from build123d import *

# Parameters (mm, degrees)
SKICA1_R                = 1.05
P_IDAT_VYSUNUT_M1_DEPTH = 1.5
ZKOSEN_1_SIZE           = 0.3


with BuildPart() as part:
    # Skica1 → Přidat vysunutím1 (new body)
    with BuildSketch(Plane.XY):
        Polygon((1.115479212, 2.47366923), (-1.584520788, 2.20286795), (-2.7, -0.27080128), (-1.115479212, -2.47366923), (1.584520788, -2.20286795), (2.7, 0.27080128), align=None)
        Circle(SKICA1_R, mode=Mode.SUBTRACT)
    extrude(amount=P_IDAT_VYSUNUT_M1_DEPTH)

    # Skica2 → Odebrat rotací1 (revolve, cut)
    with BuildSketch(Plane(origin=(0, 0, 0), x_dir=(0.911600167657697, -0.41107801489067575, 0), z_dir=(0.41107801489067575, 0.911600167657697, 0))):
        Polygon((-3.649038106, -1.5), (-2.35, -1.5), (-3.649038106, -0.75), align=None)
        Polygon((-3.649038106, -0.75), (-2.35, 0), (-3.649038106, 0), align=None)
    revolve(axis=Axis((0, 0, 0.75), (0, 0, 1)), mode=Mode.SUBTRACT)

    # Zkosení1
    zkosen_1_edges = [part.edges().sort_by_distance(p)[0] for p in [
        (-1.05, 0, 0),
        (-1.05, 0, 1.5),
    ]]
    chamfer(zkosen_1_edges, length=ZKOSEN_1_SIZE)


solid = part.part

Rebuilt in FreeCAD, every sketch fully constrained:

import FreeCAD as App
import Part
import Sketcher
from FreeCAD import Vector
Q = App.Units.Quantity


def edges_at(feature, points):
    """Names of the edges that pass closest to the given points."""
    edges = feature.Shape.Edges
    near = lambda p: min(range(len(edges)), key=lambda i: edges[i].distToShape(Part.Vertex(*p))[0])
    return sorted({f"Edge{near(p) + 1}" for p in points})

doc = App.newDocument("Part")
body = doc.addObject("PartDesign::Body", "Body")

# Sketch on XY plane
sketch1 = body.newObject("Sketcher::SketchObject", "Sketch")
sketch1.AttachmentSupport = (doc.getObject("XY_Plane"), [""])
sketch1.MapMode = "FlatFace"
sketch1.addGeometry(Part.LineSegment(Vector(1.115479, 2.473669, 0), Vector(-1.584521, 2.202868, 0)), False)
sketch1.addGeometry(Part.LineSegment(Vector(-1.584521, 2.202868, 0), Vector(-2.7, -0.270801, 0)), False)
sketch1.addGeometry(Part.LineSegment(Vector(-2.7, -0.270801, 0), Vector(-1.115479, -2.473669, 0)), False)
sketch1.addGeometry(Part.LineSegment(Vector(-1.115479, -2.473669, 0), Vector(1.584521, -2.202868, 0)), False)
sketch1.addGeometry(Part.LineSegment(Vector(1.584521, -2.202868, 0), Vector(2.7, 0.270801, 0)), False)
sketch1.addGeometry(Part.LineSegment(Vector(2.7, 0.270801, 0), Vector(1.115479, 2.473669, 0)), False)
sketch1.addGeometry(Part.Circle(Vector(0, 0, 0), Vector(0, 0, 1), 1.05), False)
sketch1.addConstraint(Sketcher.Constraint("Coincident", 0, 2, 1, 1))
sketch1.addConstraint(Sketcher.Constraint("Coincident", 1, 2, 2, 1))
sketch1.addConstraint(Sketcher.Constraint("Coincident", 2, 2, 3, 1))
sketch1.addConstraint(Sketcher.Constraint("Coincident", 3, 2, 4, 1))
sketch1.addConstraint(Sketcher.Constraint("Coincident", 4, 2, 5, 1))
sketch1.addConstraint(Sketcher.Constraint("Coincident", 5, 2, 0, 1))
sketch1.addConstraint(Sketcher.Constraint("Coincident", 6, 3, -1, 1))
sketch1.addConstraint(Sketcher.Constraint("Symmetric", 0, 2, 3, 2, -1, 1))
sketch1.addConstraint(Sketcher.Constraint("Symmetric", 1, 2, 4, 2, -1, 1))
sketch1.addConstraint(Sketcher.Constraint("Symmetric", 2, 2, 5, 2, -1, 1))
sketch1.addConstraint(Sketcher.Constraint("Equal", 0, 1))
sketch1.addConstraint(Sketcher.Constraint("Equal", 1, 2))
sketch1.addConstraint(Sketcher.Constraint("Diameter", 6, Q("2.1 mm")))
sketch1.addConstraint(Sketcher.Constraint("DistanceX", 1, 2, -1, 1, Q("2.7 mm")))
sketch1.addConstraint(Sketcher.Constraint("DistanceX", 2, 2, 3, 2, Q("2.7 mm")))
sketch1.addConstraint(Sketcher.Constraint("DistanceY", 1, 2, -1, 1, Q("0.270801 mm")))
sketch1.addConstraint(Sketcher.Constraint("DistanceY", 2, 2, 3, 2, Q("0.270801 mm")))
pad1 = body.newObject("PartDesign::Pad", "Pad")
pad1.Profile = sketch1
pad1.Length = 1.5

# Sketch on an angled plane
sketch2 = body.newObject("Sketcher::SketchObject", "Sketch001")
sketch2.Placement = App.Placement(Vector(0, 0, 0), App.Rotation(Vector(0.911600168, -0.411078015, 0), Vector(0, 0, -1.000000001), Vector(0.411078015, 0.911600168, 0), "ZXY"))
sketch2.addGeometry(Part.LineSegment(Vector(-3.649038, -1.5, 0), Vector(-2.35, -1.5, 0)), False)
sketch2.addGeometry(Part.LineSegment(Vector(-2.35, -1.5, 0), Vector(-3.649038, -0.75, 0)), False)
sketch2.addGeometry(Part.LineSegment(Vector(-3.649038, -0.75, 0), Vector(-3.649038, -1.5, 0)), False)
sketch2.addGeometry(Part.LineSegment(Vector(-3.649038, -0.75, 0), Vector(-2.35, 0, 0)), False)
sketch2.addGeometry(Part.LineSegment(Vector(-2.35, 0, 0), Vector(-3.649038, 0, 0)), False)
sketch2.addGeometry(Part.LineSegment(Vector(-3.649038, 0, 0), Vector(-3.649038, -0.75, 0)), False)
sketch2.addConstraint(Sketcher.Constraint("Coincident", 0, 2, 1, 1))
sketch2.addConstraint(Sketcher.Constraint("Coincident", 1, 2, 2, 1))
sketch2.addConstraint(Sketcher.Constraint("Coincident", 2, 2, 0, 1))
sketch2.addConstraint(Sketcher.Constraint("Coincident", 3, 2, 4, 1))
sketch2.addConstraint(Sketcher.Constraint("Coincident", 4, 2, 5, 1))
sketch2.addConstraint(Sketcher.Constraint("Coincident", 5, 2, 3, 1))
sketch2.addConstraint(Sketcher.Constraint("Horizontal", 0))
sketch2.addConstraint(Sketcher.Constraint("Vertical", 2))
sketch2.addConstraint(Sketcher.Constraint("Horizontal", 4))
sketch2.addConstraint(Sketcher.Constraint("Vertical", 5))
sketch2.addConstraint(Sketcher.Constraint("Coincident", 5, 2, 1, 2))
sketch2.addConstraint(Sketcher.Constraint("PointOnObject", 3, 2, -1))
sketch2.addConstraint(Sketcher.Constraint("Vertical", 0, 2, 3, 2))
sketch2.addConstraint(Sketcher.Constraint("Equal", 2, 5))
sketch2.addConstraint(Sketcher.Constraint("Angle", 1, Q("150 deg")))
sketch2.addConstraint(Sketcher.Constraint("Distance", 1, Q("1.5 mm")))
sketch2.addConstraint(Sketcher.Constraint("DistanceX", 0, 2, -1, 1, Q("2.35 mm")))
groove = body.newObject("PartDesign::Groove", "Groove")
groove.Profile = sketch2
groove.ReferenceAxis = (sketch2, ["V_Axis"])
groove.Angle = 360
doc.recompute()

chamfer = body.newObject("PartDesign::Chamfer", "Chamfer")
chamfer.Base = (groove, edges_at(groove, [(-1.05, 0, 0), (-1.05, 0, 1.5)]))
chamfer.Size = 0.3

doc.recompute()
